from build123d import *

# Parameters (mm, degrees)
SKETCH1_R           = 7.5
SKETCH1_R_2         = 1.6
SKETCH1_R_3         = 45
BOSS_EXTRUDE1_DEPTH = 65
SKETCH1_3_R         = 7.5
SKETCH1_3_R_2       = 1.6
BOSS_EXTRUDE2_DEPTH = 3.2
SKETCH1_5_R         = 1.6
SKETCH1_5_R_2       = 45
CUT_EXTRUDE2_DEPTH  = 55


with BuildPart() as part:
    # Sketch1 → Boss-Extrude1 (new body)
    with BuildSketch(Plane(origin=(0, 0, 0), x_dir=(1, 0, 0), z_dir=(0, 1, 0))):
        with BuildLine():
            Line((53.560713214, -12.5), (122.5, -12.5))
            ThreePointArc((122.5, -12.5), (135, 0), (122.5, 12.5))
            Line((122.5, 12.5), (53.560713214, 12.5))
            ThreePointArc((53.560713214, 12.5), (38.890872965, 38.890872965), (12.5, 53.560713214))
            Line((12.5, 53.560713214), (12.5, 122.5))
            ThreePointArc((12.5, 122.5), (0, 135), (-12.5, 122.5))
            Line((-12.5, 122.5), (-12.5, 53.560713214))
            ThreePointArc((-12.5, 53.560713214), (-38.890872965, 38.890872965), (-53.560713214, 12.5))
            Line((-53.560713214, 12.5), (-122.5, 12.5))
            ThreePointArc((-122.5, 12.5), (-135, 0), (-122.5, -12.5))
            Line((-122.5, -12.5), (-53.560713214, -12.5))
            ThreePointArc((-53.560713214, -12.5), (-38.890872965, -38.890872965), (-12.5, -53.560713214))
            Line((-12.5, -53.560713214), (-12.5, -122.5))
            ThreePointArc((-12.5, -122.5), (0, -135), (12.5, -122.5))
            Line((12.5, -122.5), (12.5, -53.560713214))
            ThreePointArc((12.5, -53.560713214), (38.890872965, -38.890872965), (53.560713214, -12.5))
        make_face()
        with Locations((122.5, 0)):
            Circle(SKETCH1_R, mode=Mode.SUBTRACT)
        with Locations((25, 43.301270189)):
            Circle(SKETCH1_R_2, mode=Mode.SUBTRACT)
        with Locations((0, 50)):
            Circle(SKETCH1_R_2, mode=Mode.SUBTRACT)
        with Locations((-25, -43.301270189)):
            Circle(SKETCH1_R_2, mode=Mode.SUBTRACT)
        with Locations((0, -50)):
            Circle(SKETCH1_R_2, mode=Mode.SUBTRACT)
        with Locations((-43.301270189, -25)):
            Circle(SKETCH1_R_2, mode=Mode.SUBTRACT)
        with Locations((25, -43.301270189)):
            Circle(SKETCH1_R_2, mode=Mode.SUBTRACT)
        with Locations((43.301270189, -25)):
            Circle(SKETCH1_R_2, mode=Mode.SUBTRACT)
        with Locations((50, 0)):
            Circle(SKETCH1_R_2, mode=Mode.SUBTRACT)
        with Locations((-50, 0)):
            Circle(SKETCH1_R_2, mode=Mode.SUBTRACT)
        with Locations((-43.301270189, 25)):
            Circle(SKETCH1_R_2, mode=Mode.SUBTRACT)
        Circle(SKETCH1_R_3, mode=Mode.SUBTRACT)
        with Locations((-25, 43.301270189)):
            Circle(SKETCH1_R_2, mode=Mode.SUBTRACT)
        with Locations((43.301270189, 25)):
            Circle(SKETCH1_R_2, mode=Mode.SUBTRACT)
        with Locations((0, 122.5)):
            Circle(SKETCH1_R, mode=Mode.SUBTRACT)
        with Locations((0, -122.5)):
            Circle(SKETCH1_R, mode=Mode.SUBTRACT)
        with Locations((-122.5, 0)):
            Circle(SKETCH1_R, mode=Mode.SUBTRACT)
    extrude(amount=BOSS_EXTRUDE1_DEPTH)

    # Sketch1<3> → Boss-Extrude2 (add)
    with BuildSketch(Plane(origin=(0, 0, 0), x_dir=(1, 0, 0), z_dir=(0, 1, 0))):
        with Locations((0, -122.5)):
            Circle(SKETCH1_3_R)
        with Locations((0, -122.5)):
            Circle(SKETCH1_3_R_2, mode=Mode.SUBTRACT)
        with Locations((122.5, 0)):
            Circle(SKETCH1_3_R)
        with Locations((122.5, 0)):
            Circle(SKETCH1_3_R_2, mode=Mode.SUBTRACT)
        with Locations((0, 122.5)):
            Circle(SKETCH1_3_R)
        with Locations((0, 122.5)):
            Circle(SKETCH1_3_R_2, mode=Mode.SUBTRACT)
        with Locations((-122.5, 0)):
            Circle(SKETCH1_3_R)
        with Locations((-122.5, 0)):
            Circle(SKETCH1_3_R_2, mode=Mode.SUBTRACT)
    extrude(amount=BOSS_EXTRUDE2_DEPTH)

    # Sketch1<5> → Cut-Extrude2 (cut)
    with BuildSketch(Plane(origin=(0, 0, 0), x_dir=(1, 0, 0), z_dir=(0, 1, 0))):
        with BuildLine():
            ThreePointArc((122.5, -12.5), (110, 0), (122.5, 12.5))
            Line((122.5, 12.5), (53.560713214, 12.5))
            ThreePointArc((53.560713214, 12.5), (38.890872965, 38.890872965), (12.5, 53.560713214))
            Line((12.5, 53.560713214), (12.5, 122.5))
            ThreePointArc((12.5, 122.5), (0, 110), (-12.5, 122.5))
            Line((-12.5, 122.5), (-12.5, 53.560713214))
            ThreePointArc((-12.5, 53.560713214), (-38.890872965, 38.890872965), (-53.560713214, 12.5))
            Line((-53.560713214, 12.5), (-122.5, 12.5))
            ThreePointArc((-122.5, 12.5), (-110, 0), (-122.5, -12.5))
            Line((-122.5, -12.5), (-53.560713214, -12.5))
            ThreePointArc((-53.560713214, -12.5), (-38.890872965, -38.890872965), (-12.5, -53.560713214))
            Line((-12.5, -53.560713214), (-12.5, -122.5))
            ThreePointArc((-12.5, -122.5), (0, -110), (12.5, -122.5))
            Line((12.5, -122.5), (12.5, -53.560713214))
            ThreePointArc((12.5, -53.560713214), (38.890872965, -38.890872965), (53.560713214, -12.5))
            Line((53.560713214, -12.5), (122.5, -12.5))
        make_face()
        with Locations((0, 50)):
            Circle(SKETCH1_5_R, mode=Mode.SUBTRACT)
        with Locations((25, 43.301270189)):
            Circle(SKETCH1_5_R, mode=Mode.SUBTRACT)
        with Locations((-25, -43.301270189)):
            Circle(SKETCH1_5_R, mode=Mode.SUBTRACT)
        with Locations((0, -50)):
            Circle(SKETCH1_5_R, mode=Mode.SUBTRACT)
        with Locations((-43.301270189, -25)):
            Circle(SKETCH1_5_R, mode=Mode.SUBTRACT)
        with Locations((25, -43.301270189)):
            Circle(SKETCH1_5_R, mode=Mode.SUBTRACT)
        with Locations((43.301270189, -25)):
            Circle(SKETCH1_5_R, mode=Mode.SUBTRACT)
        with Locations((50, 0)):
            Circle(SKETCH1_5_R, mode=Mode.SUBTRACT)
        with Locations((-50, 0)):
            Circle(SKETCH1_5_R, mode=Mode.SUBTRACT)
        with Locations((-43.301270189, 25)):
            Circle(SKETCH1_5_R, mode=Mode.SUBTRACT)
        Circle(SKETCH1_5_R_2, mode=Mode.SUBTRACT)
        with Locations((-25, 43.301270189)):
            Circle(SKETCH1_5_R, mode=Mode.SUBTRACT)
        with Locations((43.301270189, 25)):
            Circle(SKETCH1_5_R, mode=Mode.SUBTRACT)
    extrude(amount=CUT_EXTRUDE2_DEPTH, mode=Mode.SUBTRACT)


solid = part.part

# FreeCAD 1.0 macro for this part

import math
import FreeCAD as App
import Part
import Sketcher

doc = App.newDocument("Part")
body = doc.addObject("PartDesign::Body", "Body")

# Sketch on XZ plane
sketch1 = doc.addObject("Sketcher::SketchObject", "Sketch")
body.addObject(sketch1)
sketch1.AttachmentSupport = (doc.XZ_Plane, [""])
sketch1.MapMode = "FlatFace"
sketch1.addGeometry(Part.LineSegment(App.Vector(53.6, 12.5, 0), App.Vector(122.5, 12.5, 0)), False)
sketch1.addGeometry(Part.ArcOfCircle(Part.Circle(App.Vector(122.5, 0, 0), App.Vector(0, 0, 1), 12.5), math.radians(-90), math.radians(90)), False)
sketch1.addGeometry(Part.LineSegment(App.Vector(122.5, -12.5, 0), App.Vector(53.6, -12.5, 0)), False)
sketch1.addGeometry(Part.ArcOfCircle(Part.Circle(App.Vector(0, 0, 0), App.Vector(0, 0, 1), 55), math.radians(-77), math.radians(-13)), False)
sketch1.addGeometry(Part.LineSegment(App.Vector(12.5, -53.6, 0), App.Vector(12.5, -122.5, 0)), False)
sketch1.addGeometry(Part.ArcOfCircle(Part.Circle(App.Vector(0, -122.5, 0), App.Vector(0, 0, 1), 12.5), math.radians(180), math.radians(360)), False)
sketch1.addGeometry(Part.LineSegment(App.Vector(-12.5, -122.5, 0), App.Vector(-12.5, -53.6, 0)), False)
sketch1.addGeometry(Part.ArcOfCircle(Part.Circle(App.Vector(0, 0, 0), App.Vector(0, 0, 1), 55), math.radians(-167), math.radians(-103)), False)
sketch1.addGeometry(Part.LineSegment(App.Vector(-53.6, -12.5, 0), App.Vector(-122.5, -12.5, 0)), False)
sketch1.addGeometry(Part.ArcOfCircle(Part.Circle(App.Vector(-122.5, 0, 0), App.Vector(0, 0, 1), 12.5), math.radians(90), math.radians(270)), False)
sketch1.addGeometry(Part.LineSegment(App.Vector(-122.5, 12.5, 0), App.Vector(-53.6, 12.5, 0)), False)
sketch1.addGeometry(Part.ArcOfCircle(Part.Circle(App.Vector(0, 0, 0), App.Vector(0, 0, 1), 55), math.radians(103), math.radians(167)), False)
sketch1.addGeometry(Part.LineSegment(App.Vector(-12.5, 53.6, 0), App.Vector(-12.5, 122.5, 0)), False)
sketch1.addGeometry(Part.ArcOfCircle(Part.Circle(App.Vector(0, 122.5, 0), App.Vector(0, 0, 1), 12.5), math.radians(0), math.radians(180)), False)
sketch1.addGeometry(Part.LineSegment(App.Vector(12.5, 122.5, 0), App.Vector(12.5, 53.6, 0)), False)
sketch1.addGeometry(Part.ArcOfCircle(Part.Circle(App.Vector(0, 0, 0), App.Vector(0, 0, 1), 55), math.radians(13), math.radians(77)), False)
sketch1.addGeometry(Part.Circle(App.Vector(-25, 43.3, 0), App.Vector(0, 0, 1), 1.6), False)
sketch1.addGeometry(Part.Circle(App.Vector(-43.3, 25, 0), App.Vector(0, 0, 1), 1.6), False)
sketch1.addGeometry(Part.Circle(App.Vector(0, 122.5, 0), App.Vector(0, 0, 1), 7.5), False)
sketch1.addGeometry(Part.Circle(App.Vector(0, 50, 0), App.Vector(0, 0, 1), 1.6), False)
sketch1.addGeometry(Part.Circle(App.Vector(25, 43.3, 0), App.Vector(0, 0, 1), 1.6), False)
sketch1.addGeometry(Part.Circle(App.Vector(43.3, 25, 0), App.Vector(0, 0, 1), 1.6), False)
sketch1.addGeometry(Part.Circle(App.Vector(-122.5, 0, 0), App.Vector(0, 0, 1), 7.5), False)
sketch1.addGeometry(Part.Circle(App.Vector(-50, 0, 0), App.Vector(0, 0, 1), 1.6), False)
sketch1.addGeometry(Part.Circle(App.Vector(-43.3, -25, 0), App.Vector(0, 0, 1), 1.6), False)
sketch1.addGeometry(Part.Circle(App.Vector(-25, -43.3, 0), App.Vector(0, 0, 1), 1.6), False)
sketch1.addGeometry(Part.Circle(App.Vector(0, 0, 0), App.Vector(0, 0, 1), 45), False)
sketch1.addGeometry(Part.Circle(App.Vector(50, 0, 0), App.Vector(0, 0, 1), 1.6), False)
sketch1.addGeometry(Part.Circle(App.Vector(43.3, -25, 0), App.Vector(0, 0, 1), 1.6), False)
sketch1.addGeometry(Part.Circle(App.Vector(25, -43.3, 0), App.Vector(0, 0, 1), 1.6), False)
sketch1.addGeometry(Part.Circle(App.Vector(0, -50, 0), App.Vector(0, 0, 1), 1.6), False)
sketch1.addGeometry(Part.Circle(App.Vector(122.5, 0, 0), App.Vector(0, 0, 1), 7.5), False)
sketch1.addGeometry(Part.Circle(App.Vector(0, -122.5, 0), App.Vector(0, 0, 1), 7.5), False)
sketch1.addConstraint(Sketcher.Constraint("Tangent", 0, 2, 1, 2))
sketch1.addConstraint(Sketcher.Constraint("Tangent", 1, 1, 2, 1))
sketch1.addConstraint(Sketcher.Constraint("Coincident", 2, 2, 3, 2))
sketch1.addConstraint(Sketcher.Constraint("Coincident", 3, 1, 4, 1))
sketch1.addConstraint(Sketcher.Constraint("Tangent", 4, 2, 5, 2))
sketch1.addConstraint(Sketcher.Constraint("Tangent", 5, 1, 6, 1))
sketch1.addConstraint(Sketcher.Constraint("Coincident", 6, 2, 7, 2))
sketch1.addConstraint(Sketcher.Constraint("Coincident", 7, 1, 8, 1))
sketch1.addConstraint(Sketcher.Constraint("Tangent", 8, 2, 9, 2))
sketch1.addConstraint(Sketcher.Constraint("Tangent", 9, 1, 10, 1))
sketch1.addConstraint(Sketcher.Constraint("Coincident", 10, 2, 11, 2))
sketch1.addConstraint(Sketcher.Constraint("Coincident", 11, 1, 12, 1))
sketch1.addConstraint(Sketcher.Constraint("Tangent", 12, 2, 13, 2))
sketch1.addConstraint(Sketcher.Constraint("Tangent", 13, 1, 14, 1))
sketch1.addConstraint(Sketcher.Constraint("Coincident", 14, 2, 15, 2))
sketch1.addConstraint(Sketcher.Constraint("Coincident", 15, 1, 0, 1))
sketch1.addConstraint(Sketcher.Constraint("Horizontal", 0))
sketch1.addConstraint(Sketcher.Constraint("Horizontal", 2))
sketch1.addConstraint(Sketcher.Constraint("Vertical", 4))
sketch1.addConstraint(Sketcher.Constraint("Vertical", 6))
sketch1.addConstraint(Sketcher.Constraint("Horizontal", 8))
sketch1.addConstraint(Sketcher.Constraint("Horizontal", 10))
sketch1.addConstraint(Sketcher.Constraint("Vertical", 12))
sketch1.addConstraint(Sketcher.Constraint("Vertical", 14))
sketch1.addConstraint(Sketcher.Constraint("Coincident", 3, 3, -1, 1))
sketch1.addConstraint(Sketcher.Constraint("Coincident", 7, 3, -1, 1))
sketch1.addConstraint(Sketcher.Constraint("Coincident", 11, 3, -1, 1))
sketch1.addConstraint(Sketcher.Constraint("Coincident", 15, 3, -1, 1))
sketch1.addConstraint(Sketcher.Constraint("Coincident", 26, 3, -1, 1))
sketch1.addConstraint(Sketcher.Constraint("Coincident", 18, 3, 13, 3))
sketch1.addConstraint(Sketcher.Constraint("Coincident", 22, 3, 9, 3))
sketch1.addConstraint(Sketcher.Constraint("Coincident", 31, 3, 1, 3))
sketch1.addConstraint(Sketcher.Constraint("Coincident", 32, 3, 5, 3))
sketch1.addConstraint(Sketcher.Constraint("Equal", 1, 5))
sketch1.addConstraint(Sketcher.Constraint("Equal", 3, 7))
sketch1.addConstraint(Sketcher.Constraint("Equal", 5, 9))
sketch1.addConstraint(Sketcher.Constraint("Equal", 7, 11))
sketch1.addConstraint(Sketcher.Constraint("Equal", 9, 13))
sketch1.addConstraint(Sketcher.Constraint("Equal", 11, 15))
sketch1.addConstraint(Sketcher.Constraint("Equal", 16, 17))
sketch1.addConstraint(Sketcher.Constraint("Equal", 17, 19))
sketch1.addConstraint(Sketcher.Constraint("Equal", 19, 20))
sketch1.addConstraint(Sketcher.Constraint("Equal", 20, 21))
sketch1.addConstraint(Sketcher.Constraint("Equal", 18, 22))
sketch1.addConstraint(Sketcher.Constraint("Equal", 21, 23))
sketch1.addConstraint(Sketcher.Constraint("Equal", 23, 24))
sketch1.addConstraint(Sketcher.Constraint("Equal", 24, 25))
sketch1.addConstraint(Sketcher.Constraint("Equal", 25, 27))
sketch1.addConstraint(Sketcher.Constraint("Equal", 27, 28))
sketch1.addConstraint(Sketcher.Constraint("Equal", 28, 29))
sketch1.addConstraint(Sketcher.Constraint("Equal", 29, 30))
sketch1.addConstraint(Sketcher.Constraint("Equal", 22, 31))
sketch1.addConstraint(Sketcher.Constraint("Equal", 31, 32))
sketch1.addConstraint(Sketcher.Constraint("Symmetric", 1, 3, 9, 3, -1, 1))
sketch1.addConstraint(Sketcher.Constraint("Symmetric", 5, 3, 13, 3, -1, 1))
sketch1.addConstraint(Sketcher.Constraint("Symmetric", 21, 3, 24, 3, -1, 1))
sketch1.addConstraint(Sketcher.Constraint("Symmetric", 20, 3, 25, 3, -1, 1))
sketch1.addConstraint(Sketcher.Constraint("Symmetric", 23, 3, 27, 3, -1, 1))
sketch1.addConstraint(Sketcher.Constraint("Symmetric", 17, 3, 28, 3, -1, 1))
sketch1.addConstraint(Sketcher.Constraint("Symmetric", 16, 3, 29, 3, -1, 1))
sketch1.addConstraint(Sketcher.Constraint("Symmetric", 19, 3, 30, 3, -1, 1))
sketch1.addConstraint(Sketcher.Constraint("Symmetric", 16, 3, 20, 3, -2))
sketch1.addConstraint(Sketcher.Constraint("Symmetric", 17, 3, 21, 3, -2))
sketch1.addConstraint(Sketcher.Constraint("PointOnObject", 1, 3, -1))
sketch1.addConstraint(Sketcher.Constraint("PointOnObject", 5, 3, -2))
sketch1.addConstraint(Sketcher.Constraint("PointOnObject", 19, 3, -2))
sketch1.addConstraint(Sketcher.Constraint("PointOnObject", 23, 3, -1))
sketch1.addConstraint(Sketcher.Constraint("Equal", 10, 4))
sketch1.addConstraint(Sketcher.Constraint("Diameter", 18, 15.0))
sketch1.addConstraint(Sketcher.Constraint("Diameter", 26, 90.0))
sketch1.addConstraint(Sketcher.Constraint("Radius", 3, 55.0))
sketch1.addConstraint(Sketcher.Constraint("Diameter", 16, 3.2))
sketch1.addConstraint(Sketcher.Constraint("Radius", 1, 12.5))
sketch1.addConstraint(Sketcher.Constraint("DistanceX", 16, 3, -1, 1, 25.0))
sketch1.addConstraint(Sketcher.Constraint("DistanceY", -1, 1, 17, 3, 25.0))
sketch1.addConstraint(Sketcher.Constraint("DistanceY", -1, 1, 19, 3, 50.0))
sketch1.addConstraint(Sketcher.Constraint("DistanceX", 23, 3, -1, 1, 50.0))
sketch1.addConstraint(Sketcher.Constraint("DistanceX", 9, 3, 1, 3, 245.0))
sketch1.addConstraint(Sketcher.Constraint("DistanceY", -1, 1, 16, 3, 43.30127))
sketch1.addConstraint(Sketcher.Constraint("DistanceX", 17, 3, -1, 1, 43.30127))
pad1 = doc.addObject("PartDesign::Pad", "Pad")
body.addObject(pad1)
pad1.Profile = sketch1
pad1.Length = 65
pad1.Reversed = True

# Sketch on XZ plane
sketch2 = doc.addObject("Sketcher::SketchObject", "Sketch001")
body.addObject(sketch2)
sketch2.AttachmentSupport = (doc.XZ_Plane, [""])
sketch2.MapMode = "FlatFace"
sketch2.addGeometry(Part.Circle(App.Vector(0, 122.5, 0), App.Vector(0, 0, 1), 7.5), False)
sketch2.addGeometry(Part.Circle(App.Vector(0, 122.5, 0), App.Vector(0, 0, 1), 1.6), False)
sketch2.addGeometry(Part.Circle(App.Vector(122.5, 0, 0), App.Vector(0, 0, 1), 7.5), False)
sketch2.addGeometry(Part.Circle(App.Vector(122.5, 0, 0), App.Vector(0, 0, 1), 1.6), False)
sketch2.addGeometry(Part.Circle(App.Vector(0, -122.5, 0), App.Vector(0, 0, 1), 7.5), False)
sketch2.addGeometry(Part.Circle(App.Vector(0, -122.5, 0), App.Vector(0, 0, 1), 1.6), False)
sketch2.addGeometry(Part.Circle(App.Vector(-122.5, 0, 0), App.Vector(0, 0, 1), 7.5), False)
sketch2.addGeometry(Part.Circle(App.Vector(-122.5, 0, 0), App.Vector(0, 0, 1), 1.6), False)
sketch2.addConstraint(Sketcher.Constraint("Coincident", 1, 3, 0, 3))
sketch2.addConstraint(Sketcher.Constraint("Coincident", 3, 3, 2, 3))
sketch2.addConstraint(Sketcher.Constraint("Coincident", 5, 3, 4, 3))
sketch2.addConstraint(Sketcher.Constraint("Coincident", 7, 3, 6, 3))
sketch2.addConstraint(Sketcher.Constraint("Equal", 0, 2))
sketch2.addConstraint(Sketcher.Constraint("Equal", 1, 3))
sketch2.addConstraint(Sketcher.Constraint("Equal", 2, 4))
sketch2.addConstraint(Sketcher.Constraint("Equal", 3, 5))
sketch2.addConstraint(Sketcher.Constraint("Equal", 4, 6))
sketch2.addConstraint(Sketcher.Constraint("Equal", 5, 7))
sketch2.addConstraint(Sketcher.Constraint("Symmetric", 0, 3, 4, 3, -1, 1))
sketch2.addConstraint(Sketcher.Constraint("Symmetric", 2, 3, 6, 3, -1, 1))
sketch2.addConstraint(Sketcher.Constraint("PointOnObject", 0, 3, -2))
sketch2.addConstraint(Sketcher.Constraint("PointOnObject", 2, 3, -1))
sketch2.addConstraint(Sketcher.Constraint("Diameter", 0, 15.0))
sketch2.addConstraint(Sketcher.Constraint("Diameter", 1, 3.2))
sketch2.addConstraint(Sketcher.Constraint("DistanceY", 4, 3, 0, 3, 245.0))
sketch2.addConstraint(Sketcher.Constraint("DistanceX", 6, 3, 2, 3, 245.0))
pad2 = doc.addObject("PartDesign::Pad", "Pad001")
body.addObject(pad2)
pad2.Profile = sketch2
pad2.Length = 3.2
pad2.Reversed = True

# Sketch on XZ plane
sketch3 = doc.addObject("Sketcher::SketchObject", "Sketch002")
body.addObject(sketch3)
sketch3.AttachmentSupport = (doc.XZ_Plane, [""])
sketch3.MapMode = "FlatFace"
sketch3.addGeometry(Part.ArcOfCircle(Part.Circle(App.Vector(122.5, 0, 0), App.Vector(0, 0, 1), 12.5), math.radians(90), math.radians(270)), False)
sketch3.addGeometry(Part.LineSegment(App.Vector(122.5, -12.5, 0), App.Vector(53.6, -12.5, 0)), False)
sketch3.addGeometry(Part.ArcOfCircle(Part.Circle(App.Vector(0, 0, 0), App.Vector(0, 0, 1), 55), math.radians(-77), math.radians(-13)), False)
sketch3.addGeometry(Part.LineSegment(App.Vector(12.5, -53.6, 0), App.Vector(12.5, -122.5, 0)), False)
sketch3.addGeometry(Part.ArcOfCircle(Part.Circle(App.Vector(0, -122.5, 0), App.Vector(0, 0, 1), 12.5), math.radians(0), math.radians(180)), False)
sketch3.addGeometry(Part.LineSegment(App.Vector(-12.5, -122.5, 0), App.Vector(-12.5, -53.6, 0)), False)
sketch3.addGeometry(Part.ArcOfCircle(Part.Circle(App.Vector(0, 0, 0), App.Vector(0, 0, 1), 55), math.radians(-167), math.radians(-103)), False)
sketch3.addGeometry(Part.LineSegment(App.Vector(-53.6, -12.5, 0), App.Vector(-122.5, -12.5, 0)), False)
sketch3.addGeometry(Part.ArcOfCircle(Part.Circle(App.Vector(-122.5, 0, 0), App.Vector(0, 0, 1), 12.5), math.radians(-90), math.radians(90)), False)
sketch3.addGeometry(Part.LineSegment(App.Vector(-122.5, 12.5, 0), App.Vector(-53.6, 12.5, 0)), False)
sketch3.addGeometry(Part.ArcOfCircle(Part.Circle(App.Vector(0, 0, 0), App.Vector(0, 0, 1), 55), math.radians(103), math.radians(167)), False)
sketch3.addGeometry(Part.LineSegment(App.Vector(-12.5, 53.6, 0), App.Vector(-12.5, 122.5, 0)), False)
sketch3.addGeometry(Part.ArcOfCircle(Part.Circle(App.Vector(0, 122.5, 0), App.Vector(0, 0, 1), 12.5), math.radians(180), math.radians(360)), False)
sketch3.addGeometry(Part.LineSegment(App.Vector(12.5, 122.5, 0), App.Vector(12.5, 53.6, 0)), False)
sketch3.addGeometry(Part.ArcOfCircle(Part.Circle(App.Vector(0, 0, 0), App.Vector(0, 0, 1), 55), math.radians(13), math.radians(77)), False)
sketch3.addGeometry(Part.LineSegment(App.Vector(53.6, 12.5, 0), App.Vector(122.5, 12.5, 0)), False)
sketch3.addGeometry(Part.Circle(App.Vector(-25, 43.3, 0), App.Vector(0, 0, 1), 1.6), False)
sketch3.addGeometry(Part.Circle(App.Vector(-43.3, 25, 0), App.Vector(0, 0, 1), 1.6), False)
sketch3.addGeometry(Part.Circle(App.Vector(0, 50, 0), App.Vector(0, 0, 1), 1.6), False)
sketch3.addGeometry(Part.Circle(App.Vector(25, 43.3, 0), App.Vector(0, 0, 1), 1.6), False)
sketch3.addGeometry(Part.Circle(App.Vector(43.3, 25, 0), App.Vector(0, 0, 1), 1.6), False)
sketch3.addGeometry(Part.Circle(App.Vector(-50, 0, 0), App.Vector(0, 0, 1), 1.6), False)
sketch3.addGeometry(Part.Circle(App.Vector(-43.3, -25, 0), App.Vector(0, 0, 1), 1.6), False)
sketch3.addGeometry(Part.Circle(App.Vector(-25, -43.3, 0), App.Vector(0, 0, 1), 1.6), False)
sketch3.addGeometry(Part.Circle(App.Vector(0, 0, 0), App.Vector(0, 0, 1), 45), False)
sketch3.addGeometry(Part.Circle(App.Vector(50, 0, 0), App.Vector(0, 0, 1), 1.6), False)
sketch3.addGeometry(Part.Circle(App.Vector(43.3, -25, 0), App.Vector(0, 0, 1), 1.6), False)
sketch3.addGeometry(Part.Circle(App.Vector(0, -50, 0), App.Vector(0, 0, 1), 1.6), False)
sketch3.addGeometry(Part.Circle(App.Vector(25, -43.3, 0), App.Vector(0, 0, 1), 1.6), False)
sketch3.addConstraint(Sketcher.Constraint("Tangent", 0, 2, 1, 1))
sketch3.addConstraint(Sketcher.Constraint("Coincident", 1, 2, 2, 2))
sketch3.addConstraint(Sketcher.Constraint("Coincident", 2, 1, 3, 1))
sketch3.addConstraint(Sketcher.Constraint("Tangent", 3, 2, 4, 1))
sketch3.addConstraint(Sketcher.Constraint("Tangent", 4, 2, 5, 1))
sketch3.addConstraint(Sketcher.Constraint("Coincident", 5, 2, 6, 2))
sketch3.addConstraint(Sketcher.Constraint("Coincident", 6, 1, 7, 1))
sketch3.addConstraint(Sketcher.Constraint("Tangent", 7, 2, 8, 1))
sketch3.addConstraint(Sketcher.Constraint("Tangent", 8, 2, 9, 1))
sketch3.addConstraint(Sketcher.Constraint("Coincident", 9, 2, 10, 2))
sketch3.addConstraint(Sketcher.Constraint("Coincident", 10, 1, 11, 1))
sketch3.addConstraint(Sketcher.Constraint("Tangent", 11, 2, 12, 1))
sketch3.addConstraint(Sketcher.Constraint("Tangent", 12, 2, 13, 1))
sketch3.addConstraint(Sketcher.Constraint("Coincident", 13, 2, 14, 2))
sketch3.addConstraint(Sketcher.Constraint("Coincident", 14, 1, 15, 1))
sketch3.addConstraint(Sketcher.Constraint("Tangent", 15, 2, 0, 1))
sketch3.addConstraint(Sketcher.Constraint("Horizontal", 1))
sketch3.addConstraint(Sketcher.Constraint("Vertical", 3))
sketch3.addConstraint(Sketcher.Constraint("Vertical", 5))
sketch3.addConstraint(Sketcher.Constraint("Horizontal", 7))
sketch3.addConstraint(Sketcher.Constraint("Horizontal", 9))
sketch3.addConstraint(Sketcher.Constraint("Vertical", 11))
sketch3.addConstraint(Sketcher.Constraint("Vertical", 13))
sketch3.addConstraint(Sketcher.Constraint("Horizontal", 15))
sketch3.addConstraint(Sketcher.Constraint("Coincident", 2, 3, -1, 1))
sketch3.addConstraint(Sketcher.Constraint("Coincident", 6, 3, -1, 1))
sketch3.addConstraint(Sketcher.Constraint("Coincident", 10, 3, -1, 1))
sketch3.addConstraint(Sketcher.Constraint("Coincident", 14, 3, -1, 1))
sketch3.addConstraint(Sketcher.Constraint("Coincident", 24, 3, -1, 1))
sketch3.addConstraint(Sketcher.Constraint("Equal", 0, 4))
sketch3.addConstraint(Sketcher.Constraint("Equal", 2, 6))
sketch3.addConstraint(Sketcher.Constraint("Equal", 4, 8))
sketch3.addConstraint(Sketcher.Constraint("Equal", 6, 10))
sketch3.addConstraint(Sketcher.Constraint("Equal", 8, 12))
sketch3.addConstraint(Sketcher.Constraint("Equal", 10, 14))
sketch3.addConstraint(Sketcher.Constraint("Equal", 16, 17))
sketch3.addConstraint(Sketcher.Constraint("Equal", 17, 18))
sketch3.addConstraint(Sketcher.Constraint("Equal", 18, 19))
sketch3.addConstraint(Sketcher.Constraint("Equal", 19, 20))
sketch3.addConstraint(Sketcher.Constraint("Equal", 20, 21))
sketch3.addConstraint(Sketcher.Constraint("Equal", 21, 22))
sketch3.addConstraint(Sketcher.Constraint("Equal", 22, 23))
sketch3.addConstraint(Sketcher.Constraint("Equal", 23, 25))
sketch3.addConstraint(Sketcher.Constraint("Equal", 25, 26))
sketch3.addConstraint(Sketcher.Constraint("Equal", 26, 27))
sketch3.addConstraint(Sketcher.Constraint("Equal", 27, 28))
sketch3.addConstraint(Sketcher.Constraint("Symmetric", 0, 3, 8, 3, -1, 1))
sketch3.addConstraint(Sketcher.Constraint("Symmetric", 4, 3, 12, 3, -1, 1))
sketch3.addConstraint(Sketcher.Constraint("Symmetric", 20, 3, 22, 3, -1, 1))
sketch3.addConstraint(Sketcher.Constraint("Symmetric", 19, 3, 23, 3, -1, 1))
sketch3.addConstraint(Sketcher.Constraint("Symmetric", 21, 3, 25, 3, -1, 1))
sketch3.addConstraint(Sketcher.Constraint("Symmetric", 17, 3, 26, 3, -1, 1))
sketch3.addConstraint(Sketcher.Constraint("Symmetric", 18, 3, 27, 3, -1, 1))
sketch3.addConstraint(Sketcher.Constraint("Symmetric", 16, 3, 28, 3, -1, 1))
sketch3.addConstraint(Sketcher.Constraint("Symmetric", 16, 3, 19, 3, -2))
sketch3.addConstraint(Sketcher.Constraint("Symmetric", 17, 3, 20, 3, -2))
sketch3.addConstraint(Sketcher.Constraint("PointOnObject", 0, 3, -1))
sketch3.addConstraint(Sketcher.Constraint("PointOnObject", 4, 3, -2))
sketch3.addConstraint(Sketcher.Constraint("PointOnObject", 18, 3, -2))
sketch3.addConstraint(Sketcher.Constraint("PointOnObject", 21, 3, -1))
sketch3.addConstraint(Sketcher.Constraint("Equal", 15, 3))
sketch3.addConstraint(Sketcher.Constraint("Diameter", 24, 90.0))
sketch3.addConstraint(Sketcher.Constraint("Radius", 2, 55.0))
sketch3.addConstraint(Sketcher.Constraint("Diameter", 16, 3.2))
sketch3.addConstraint(Sketcher.Constraint("Radius", 0, 12.5))
sketch3.addConstraint(Sketcher.Constraint("DistanceX", 16, 3, -1, 1, 25.0))
sketch3.addConstraint(Sketcher.Constraint("DistanceY", -1, 1, 17, 3, 25.0))
sketch3.addConstraint(Sketcher.Constraint("DistanceY", -1, 1, 18, 3, 50.0))
sketch3.addConstraint(Sketcher.Constraint("DistanceX", 21, 3, -1, 1, 50.0))
sketch3.addConstraint(Sketcher.Constraint("DistanceX", 8, 3, 0, 3, 245.0))
sketch3.addConstraint(Sketcher.Constraint("DistanceY", -1, 1, 16, 3, 43.30127))
sketch3.addConstraint(Sketcher.Constraint("DistanceX", 17, 3, -1, 1, 43.30127))
pocket1 = doc.addObject("PartDesign::Pocket", "Pocket")
body.addObject(pocket1)
pocket1.Profile = sketch3
pocket1.Length = 55

doc.recompute()
